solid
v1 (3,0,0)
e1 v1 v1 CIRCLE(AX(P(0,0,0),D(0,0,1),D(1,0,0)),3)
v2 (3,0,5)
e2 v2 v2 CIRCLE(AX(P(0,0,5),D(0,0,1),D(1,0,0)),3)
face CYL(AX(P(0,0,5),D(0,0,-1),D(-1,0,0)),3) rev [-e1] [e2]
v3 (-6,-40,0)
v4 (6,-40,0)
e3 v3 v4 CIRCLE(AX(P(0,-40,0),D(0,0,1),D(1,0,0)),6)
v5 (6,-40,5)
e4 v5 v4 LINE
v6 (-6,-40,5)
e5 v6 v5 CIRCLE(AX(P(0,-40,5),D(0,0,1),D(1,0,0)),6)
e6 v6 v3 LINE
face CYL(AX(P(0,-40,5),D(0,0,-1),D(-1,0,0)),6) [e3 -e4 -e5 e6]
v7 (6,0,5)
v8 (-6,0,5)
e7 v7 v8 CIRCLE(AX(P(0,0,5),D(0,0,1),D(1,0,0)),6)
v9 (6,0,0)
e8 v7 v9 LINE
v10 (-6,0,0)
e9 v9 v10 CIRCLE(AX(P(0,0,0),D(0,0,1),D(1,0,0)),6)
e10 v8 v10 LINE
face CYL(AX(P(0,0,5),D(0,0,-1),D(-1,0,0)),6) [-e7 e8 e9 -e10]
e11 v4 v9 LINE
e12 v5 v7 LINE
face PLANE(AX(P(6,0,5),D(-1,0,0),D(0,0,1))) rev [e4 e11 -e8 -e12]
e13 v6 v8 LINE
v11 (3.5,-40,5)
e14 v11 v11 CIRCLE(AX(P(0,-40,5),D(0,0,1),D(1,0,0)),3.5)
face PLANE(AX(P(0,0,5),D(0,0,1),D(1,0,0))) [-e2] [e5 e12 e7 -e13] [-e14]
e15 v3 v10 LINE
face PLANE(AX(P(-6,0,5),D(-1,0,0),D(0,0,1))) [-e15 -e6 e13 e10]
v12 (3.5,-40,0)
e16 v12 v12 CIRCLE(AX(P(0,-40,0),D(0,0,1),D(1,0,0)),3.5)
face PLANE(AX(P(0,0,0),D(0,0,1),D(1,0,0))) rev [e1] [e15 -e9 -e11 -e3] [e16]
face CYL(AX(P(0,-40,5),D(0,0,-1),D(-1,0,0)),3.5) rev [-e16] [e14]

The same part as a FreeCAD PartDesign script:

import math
import FreeCAD as App
import Part
import Sketcher
from FreeCAD import Vector
Q = App.Units.Quantity

doc = App.newDocument("Part")
params = doc.addObject("Spreadsheet::Sheet", "Params")
for row, (alias, value) in enumerate([
    ("sketch1_diameter", "7 mm"),
    ("sketch1_diameter2", "6 mm"),
    ("sketch1_radius", "6 mm"),
    ("sketch1_height", "40 mm"),
    ("pad1_length", "5 mm"),
], start=1):
    params.set(f"A{row}", alias)
    params.set(f"B{row}", "=" + value)
    params.setAlias(f"B{row}", alias)

body = doc.addObject("PartDesign::Body", "Body")

# Sketch on XY plane
sketch1 = doc.addObject("Sketcher::SketchObject", "Sketch")
body.addObject(sketch1)
sketch1.AttachmentSupport = (doc.XY_Plane, [""])
sketch1.MapMode = "FlatFace"
sketch1.addGeometry([
    Part.LineSegment(Vector(-6, 0, 0), Vector(-6, -40, 0)),  # 0
    Part.ArcOfCircle(Part.Circle(Vector(0, -40, 0), Vector(0, 0, 1), 6), math.radians(180), math.radians(360)),  # 1
    Part.LineSegment(Vector(6, -40, 0), Vector(6, 0, 0)),  # 2
    Part.ArcOfCircle(Part.Circle(Vector(0, 0, 0), Vector(0, 0, 1), 6), math.radians(0), math.radians(180)),  # 3
    Part.Circle(Vector(0, -40, 0), Vector(0, 0, 1), 3.5),  # 4
    Part.Circle(Vector(0, 0, 0), Vector(0, 0, 1), 3),  # 5
], False)
sketch1.addConstraint([
    Sketcher.Constraint("Tangent", 0, 2, 1, 1),
    Sketcher.Constraint("Tangent", 1, 2, 2, 1),
    Sketcher.Constraint("Tangent", 2, 2, 3, 1),
    Sketcher.Constraint("Tangent", 3, 2, 0, 1),
    Sketcher.Constraint("Vertical", 0),
    Sketcher.Constraint("Vertical", 2),
    Sketcher.Constraint("Coincident", 3, 3, -1, 1),
    Sketcher.Constraint("Coincident", 5, 3, -1, 1),
    Sketcher.Constraint("Coincident", 4, 3, 1, 3),
    Sketcher.Constraint("Diameter", 4, Q("7 mm")),
    Sketcher.Constraint("Diameter", 5, Q("6 mm")),
    Sketcher.Constraint("Radius", 1, Q("6 mm")),
    Sketcher.Constraint("DistanceY", 0, 2, 0, 1, Q("40 mm")),
])
sketch1.setExpression("Constraints[9]", "Params.sketch1_diameter")
sketch1.setExpression("Constraints[10]", "Params.sketch1_diameter2")
sketch1.setExpression("Constraints[11]", "Params.sketch1_radius")
sketch1.setExpression("Constraints[12]", "Params.sketch1_height")
pad1 = doc.addObject("PartDesign::Pad", "Pad")
body.addObject(pad1)
pad1.Profile = sketch1
pad1.setExpression("Length", "Params.pad1_length")

doc.recompute()
